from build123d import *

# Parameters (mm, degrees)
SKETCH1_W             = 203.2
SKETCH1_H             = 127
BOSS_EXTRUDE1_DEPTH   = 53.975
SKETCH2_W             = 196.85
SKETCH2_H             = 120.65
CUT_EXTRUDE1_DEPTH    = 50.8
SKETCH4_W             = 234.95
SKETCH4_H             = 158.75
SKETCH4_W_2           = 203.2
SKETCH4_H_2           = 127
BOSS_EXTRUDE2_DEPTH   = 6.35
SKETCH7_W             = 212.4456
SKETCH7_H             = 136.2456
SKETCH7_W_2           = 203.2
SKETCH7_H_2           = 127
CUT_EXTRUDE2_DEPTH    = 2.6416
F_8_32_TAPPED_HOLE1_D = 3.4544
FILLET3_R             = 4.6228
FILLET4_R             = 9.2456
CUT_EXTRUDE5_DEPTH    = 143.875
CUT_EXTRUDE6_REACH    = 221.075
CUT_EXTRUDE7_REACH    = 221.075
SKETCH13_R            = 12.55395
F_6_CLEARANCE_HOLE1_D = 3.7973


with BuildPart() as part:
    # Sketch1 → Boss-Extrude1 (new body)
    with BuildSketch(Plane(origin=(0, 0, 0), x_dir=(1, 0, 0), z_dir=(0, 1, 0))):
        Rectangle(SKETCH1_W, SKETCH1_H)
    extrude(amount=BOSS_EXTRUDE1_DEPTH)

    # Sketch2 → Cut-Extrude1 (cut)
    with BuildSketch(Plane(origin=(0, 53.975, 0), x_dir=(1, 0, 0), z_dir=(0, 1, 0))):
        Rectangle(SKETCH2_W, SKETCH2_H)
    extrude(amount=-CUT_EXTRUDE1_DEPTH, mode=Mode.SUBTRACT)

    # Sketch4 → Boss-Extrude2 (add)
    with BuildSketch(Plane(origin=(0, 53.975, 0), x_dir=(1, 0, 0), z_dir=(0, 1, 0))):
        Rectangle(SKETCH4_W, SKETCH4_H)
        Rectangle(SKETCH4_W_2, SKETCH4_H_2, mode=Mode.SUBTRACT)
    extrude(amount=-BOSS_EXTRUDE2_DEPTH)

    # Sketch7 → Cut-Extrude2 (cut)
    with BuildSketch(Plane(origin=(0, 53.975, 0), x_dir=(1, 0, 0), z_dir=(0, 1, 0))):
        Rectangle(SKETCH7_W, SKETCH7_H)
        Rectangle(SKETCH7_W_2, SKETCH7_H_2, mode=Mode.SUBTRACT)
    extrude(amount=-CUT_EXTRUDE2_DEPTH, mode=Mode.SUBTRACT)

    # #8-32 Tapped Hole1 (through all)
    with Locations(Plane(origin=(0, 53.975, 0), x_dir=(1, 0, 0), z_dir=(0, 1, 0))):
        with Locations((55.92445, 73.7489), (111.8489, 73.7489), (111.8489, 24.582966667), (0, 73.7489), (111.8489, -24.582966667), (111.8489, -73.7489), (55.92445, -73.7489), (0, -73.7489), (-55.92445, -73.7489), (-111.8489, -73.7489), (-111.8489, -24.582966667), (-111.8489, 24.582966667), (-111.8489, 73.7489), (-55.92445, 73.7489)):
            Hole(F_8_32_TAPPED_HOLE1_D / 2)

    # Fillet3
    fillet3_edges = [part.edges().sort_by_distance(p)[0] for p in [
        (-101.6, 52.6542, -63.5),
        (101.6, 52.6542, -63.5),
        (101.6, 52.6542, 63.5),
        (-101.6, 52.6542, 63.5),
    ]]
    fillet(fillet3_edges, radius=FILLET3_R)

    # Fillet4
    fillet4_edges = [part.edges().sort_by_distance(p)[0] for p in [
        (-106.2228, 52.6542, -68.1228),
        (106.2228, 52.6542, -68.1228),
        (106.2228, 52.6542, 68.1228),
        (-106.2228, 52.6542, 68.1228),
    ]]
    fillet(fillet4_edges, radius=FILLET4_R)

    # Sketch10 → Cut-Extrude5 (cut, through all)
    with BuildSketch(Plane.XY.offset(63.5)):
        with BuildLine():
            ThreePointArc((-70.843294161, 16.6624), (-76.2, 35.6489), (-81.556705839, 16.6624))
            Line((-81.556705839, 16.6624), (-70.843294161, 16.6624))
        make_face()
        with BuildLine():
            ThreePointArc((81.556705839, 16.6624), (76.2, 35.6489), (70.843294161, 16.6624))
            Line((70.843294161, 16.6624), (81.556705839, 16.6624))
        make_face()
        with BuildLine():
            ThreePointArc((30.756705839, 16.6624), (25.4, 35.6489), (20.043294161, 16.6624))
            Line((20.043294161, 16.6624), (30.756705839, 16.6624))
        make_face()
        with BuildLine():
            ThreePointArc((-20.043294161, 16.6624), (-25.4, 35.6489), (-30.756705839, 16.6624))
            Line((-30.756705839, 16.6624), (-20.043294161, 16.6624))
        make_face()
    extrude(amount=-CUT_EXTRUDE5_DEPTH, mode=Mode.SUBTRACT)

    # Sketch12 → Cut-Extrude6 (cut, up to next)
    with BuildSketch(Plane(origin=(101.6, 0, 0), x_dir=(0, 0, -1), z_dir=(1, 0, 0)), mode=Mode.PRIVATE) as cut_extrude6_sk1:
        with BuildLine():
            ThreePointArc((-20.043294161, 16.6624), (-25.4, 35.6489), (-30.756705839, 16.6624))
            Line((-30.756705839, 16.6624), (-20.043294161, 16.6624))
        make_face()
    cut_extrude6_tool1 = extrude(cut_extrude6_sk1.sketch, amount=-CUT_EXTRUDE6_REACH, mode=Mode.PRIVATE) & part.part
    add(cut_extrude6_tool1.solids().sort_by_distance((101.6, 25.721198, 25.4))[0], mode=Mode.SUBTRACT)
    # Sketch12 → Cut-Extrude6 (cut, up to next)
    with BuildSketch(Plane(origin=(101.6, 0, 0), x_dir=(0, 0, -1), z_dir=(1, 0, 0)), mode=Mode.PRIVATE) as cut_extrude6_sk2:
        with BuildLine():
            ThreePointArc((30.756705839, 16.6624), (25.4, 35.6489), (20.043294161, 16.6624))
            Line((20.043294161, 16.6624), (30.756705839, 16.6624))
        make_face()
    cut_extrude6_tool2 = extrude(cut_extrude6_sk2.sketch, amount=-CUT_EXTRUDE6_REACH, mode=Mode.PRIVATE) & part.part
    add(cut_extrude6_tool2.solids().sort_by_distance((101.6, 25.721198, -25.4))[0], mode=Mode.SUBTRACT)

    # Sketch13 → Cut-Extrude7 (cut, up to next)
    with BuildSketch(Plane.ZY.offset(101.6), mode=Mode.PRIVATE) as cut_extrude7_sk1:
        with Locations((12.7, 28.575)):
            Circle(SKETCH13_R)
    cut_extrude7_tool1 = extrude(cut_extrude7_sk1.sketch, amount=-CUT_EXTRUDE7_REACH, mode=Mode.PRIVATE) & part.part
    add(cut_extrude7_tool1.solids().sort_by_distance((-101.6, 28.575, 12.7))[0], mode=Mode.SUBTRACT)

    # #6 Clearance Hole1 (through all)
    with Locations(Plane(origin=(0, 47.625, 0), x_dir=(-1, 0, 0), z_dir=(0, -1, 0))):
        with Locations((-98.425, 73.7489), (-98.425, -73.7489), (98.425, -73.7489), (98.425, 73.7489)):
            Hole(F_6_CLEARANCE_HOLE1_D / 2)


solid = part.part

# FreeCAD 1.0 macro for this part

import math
import FreeCAD as App
import Part
import Sketcher
Q = App.Units.Quantity


def edges_at(feature, points):
    """Names of the edges that pass closest to the given points."""
    edges = feature.Shape.Edges
    near = lambda p: min(range(len(edges)), key=lambda i: edges[i].distToShape(Part.Vertex(*p))[0])
    return sorted({f"Edge{near(p) + 1}" for p in points})


def add_polygon(sketch, points):
    """Adds a closed chain of lines whose ends are joined by coincident constraints."""
    first, n = sketch.GeometryCount, len(points)
    for a, b in zip(points, points[1:] + points[:1]):
        sketch.addGeometry(Part.LineSegment(App.Vector(*a, 0), App.Vector(*b, 0)), False)
    for i in range(n):
        sketch.addConstraint(Sketcher.Constraint("Coincident", first + i, 2, first + (i + 1) % n, 1))

doc = App.newDocument("Part")
params = doc.addObject("Spreadsheet::Sheet", "Params")
for row, (alias, value) in enumerate([
    ("sketch1_width", "8 in"),
    ("sketch1_height", "5 in"),
    ("pad1_length", "2.125 in"),
    ("sketch2_width", "7.75 in"),
    ("sketch2_height", "4.75 in"),
    ("pocket1_length", "2 in"),
    ("sketch3_width", "8 in"),
    ("sketch3_height", "5 in"),
    ("sketch3_width2", "9.25 in"),
    ("sketch3_height2", "6.25 in"),
    ("pad2_length", "0.25 in"),
    ("sketch4_width", "8 in"),
    ("sketch4_height", "5 in"),
    ("sketch4_width2", "8.364 in"),
    ("sketch4_height2", "5.364 in"),
    ("pocket2_length", "0.104 in"),
    ("sketch5_diameter", "0.136 in"),
    ("hole_diameter", "0.136 in"),
    ("fillet_radius", "0.182 in"),
    ("fillet2_radius", "0.364 in"),
    ("hole2_diameter", "0.1495 in"),
], start=1):
    params.set(f"A{row}", alias)
    params.set(f"B{row}", "=" + value)
    params.setAlias(f"B{row}", alias)

body = doc.addObject("PartDesign::Body", "Body")

# Sketch on XZ plane
sketch1 = body.newObject("Sketcher::SketchObject", "Sketch")
sketch1.AttachmentSupport = (doc.getObject("XZ_Plane"), [""])
sketch1.MapMode = "FlatFace"
add_polygon(sketch1, [(-102, -64), (-102, 64), (102, 64), (102, -64)])  # lines 0-3
sketch1.addConstraint([
    Sketcher.Constraint("Vertical", 0),
    Sketcher.Constraint("Horizontal", 1),
    Sketcher.Constraint("Vertical", 2),
    Sketcher.Constraint("Horizontal", 3),
    Sketcher.Constraint("Symmetric", 0, 2, 2, 2, -1, 1),
    Sketcher.Constraint("DistanceX", 1, 1, 1, 2, Q("8 in")),
    Sketcher.Constraint("DistanceY", 0, 1, 0, 2, Q("5 in")),
])
sketch1.setExpression("Constraints[9]", "Params.sketch1_width")
sketch1.setExpression("Constraints[10]", "Params.sketch1_height")
pad1 = body.newObject("PartDesign::Pad", "Pad")
pad1.Profile = sketch1
pad1.setExpression("Length", "Params.pad1_length")
pad1.Reversed = True

# Sketch on XZ plane
sketch2 = body.newObject("Sketcher::SketchObject", "Sketch001")
sketch2.AttachmentSupport = (doc.getObject("XZ_Plane"), [""])
sketch2.MapMode = "FlatFace"
sketch2.AttachmentOffset = App.Placement(App.Vector(0, 0, -2.125 * 25.4), App.Rotation())
add_polygon(sketch2, [(-98, -60), (-98, 60), (98, 60), (98, -60)])  # lines 0-3
sketch2.addConstraint([
    Sketcher.Constraint("Vertical", 0),
    Sketcher.Constraint("Horizontal", 1),
    Sketcher.Constraint("Vertical", 2),
    Sketcher.Constraint("Horizontal", 3),
    Sketcher.Constraint("Symmetric", 0, 2, 2, 2, -1, 1),
    Sketcher.Constraint("DistanceX", 1, 1, 1, 2, Q("7.75 in")),
    Sketcher.Constraint("DistanceY", 0, 1, 0, 2, Q("4.75 in")),
])
sketch2.setExpression("Constraints[9]", "Params.sketch2_width")
sketch2.setExpression("Constraints[10]", "Params.sketch2_height")
pocket1 = body.newObject("PartDesign::Pocket", "Pocket")
pocket1.Profile = sketch2
pocket1.setExpression("Length", "Params.pocket1_length")
pocket1.Reversed = True

# Sketch on XZ plane
sketch3 = body.newObject("Sketcher::SketchObject", "Sketch002")
sketch3.AttachmentSupport = (doc.getObject("XZ_Plane"), [""])
sketch3.MapMode = "FlatFace"
sketch3.AttachmentOffset = App.Placement(App.Vector(0, 0, -2.125 * 25.4), App.Rotation())
add_polygon(sketch3, [(-117, -79), (-117, 79), (117, 79), (117, -79)])  # lines 0-3
add_polygon(sketch3, [(102, 64), (-102, 64), (-102, -64), (102, -64)])  # lines 4-7
sketch3.addConstraint([
    Sketcher.Constraint("Vertical", 0),
    Sketcher.Constraint("Horizontal", 1),
    Sketcher.Constraint("Vertical", 2),
    Sketcher.Constraint("Horizontal", 3),
    Sketcher.Constraint("Horizontal", 4),
    Sketcher.Constraint("Vertical", 5),
    Sketcher.Constraint("Horizontal", 6),
    Sketcher.Constraint("Vertical", 7),
    Sketcher.Constraint("Symmetric", 0, 2, 2, 2, -1, 1),
    Sketcher.Constraint("Symmetric", 4, 2, 6, 2, -1, 1),
    Sketcher.Constraint("DistanceX", 4, 2, 4, 1, Q("8 in")),
    Sketcher.Constraint("DistanceY", 5, 2, 5, 1, Q("5 in")),
    Sketcher.Constraint("DistanceX", 1, 1, 1, 2, Q("9.25 in")),
    Sketcher.Constraint("DistanceY", 0, 1, 0, 2, Q("6.25 in")),
])
sketch3.setExpression("Constraints[18]", "Params.sketch3_width")
sketch3.setExpression("Constraints[19]", "Params.sketch3_height")
sketch3.setExpression("Constraints[20]", "Params.sketch3_width2")
sketch3.setExpression("Constraints[21]", "Params.sketch3_height2")
pad2 = body.newObject("PartDesign::Pad", "Pad001")
pad2.Profile = sketch3
pad2.setExpression("Length", "Params.pad2_length")

# Sketch on XZ plane
sketch4 = body.newObject("Sketcher::SketchObject", "Sketch003")
sketch4.AttachmentSupport = (doc.getObject("XZ_Plane"), [""])
sketch4.MapMode = "FlatFace"
sketch4.AttachmentOffset = App.Placement(App.Vector(0, 0, -2.125 * 25.4), App.Rotation())
add_polygon(sketch4, [(-106, -68), (-106, 68), (106, 68), (106, -68)])  # lines 0-3
add_polygon(sketch4, [(102, 64), (-102, 64), (-102, -64), (102, -64)])  # lines 4-7
sketch4.addConstraint([
    Sketcher.Constraint("Vertical", 0),
    Sketcher.Constraint("Horizontal", 1),
    Sketcher.Constraint("Vertical", 2),
    Sketcher.Constraint("Horizontal", 3),
    Sketcher.Constraint("Horizontal", 4),
    Sketcher.Constraint("Vertical", 5),
    Sketcher.Constraint("Horizontal", 6),
    Sketcher.Constraint("Vertical", 7),
    Sketcher.Constraint("Symmetric", 0, 2, 2, 2, -1, 1),
    Sketcher.Constraint("Symmetric", 4, 2, 6, 2, -1, 1),
    Sketcher.Constraint("DistanceX", 4, 2, 4, 1, Q("8 in")),
    Sketcher.Constraint("DistanceY", 5, 2, 5, 1, Q("5 in")),
    Sketcher.Constraint("DistanceX", 1, 1, 1, 2, Q("8.364 in")),
    Sketcher.Constraint("DistanceY", 0, 1, 0, 2, Q("5.364 in")),
])
sketch4.setExpression("Constraints[18]", "Params.sketch4_width")
sketch4.setExpression("Constraints[19]", "Params.sketch4_height")
sketch4.setExpression("Constraints[20]", "Params.sketch4_width2")
sketch4.setExpression("Constraints[21]", "Params.sketch4_height2")
pocket2 = body.newObject("PartDesign::Pocket", "Pocket001")
pocket2.Profile = sketch4
pocket2.setExpression("Length", "Params.pocket2_length")
pocket2.Reversed = True

# Sketch on XZ plane
sketch5 = body.newObject("Sketcher::SketchObject", "Sketch004")
sketch5.AttachmentSupport = (doc.getObject("XZ_Plane"), [""])
sketch5.MapMode = "FlatFace"
sketch5.AttachmentOffset = App.Placement(App.Vector(0, 0, -2.125 * 25.4), App.Rotation())
sketch5.addGeometry([
    Part.Circle(App.Vector(55.9, -73.7, 0), App.Vector(0, 0, 1), 1.7),  # 0
    Part.Circle(App.Vector(111.8, -73.7, 0), App.Vector(0, 0, 1), 1.7),  # 1
    Part.Circle(App.Vector(111.8, -24.6, 0), App.Vector(0, 0, 1), 1.7),  # 2
    Part.Circle(App.Vector(0, -73.7, 0), App.Vector(0, 0, 1), 1.7),  # 3
    Part.Circle(App.Vector(111.8, 24.6, 0), App.Vector(0, 0, 1), 1.7),  # 4
    Part.Circle(App.Vector(111.8, 73.7, 0), App.Vector(0, 0, 1), 1.7),  # 5
    Part.Circle(App.Vector(55.9, 73.7, 0), App.Vector(0, 0, 1), 1.7),  # 6
    Part.Circle(App.Vector(0, 73.7, 0), App.Vector(0, 0, 1), 1.7),  # 7
    Part.Circle(App.Vector(-55.9, 73.7, 0), App.Vector(0, 0, 1), 1.7),  # 8
    Part.Circle(App.Vector(-111.8, 73.7, 0), App.Vector(0, 0, 1), 1.7),  # 9
    Part.Circle(App.Vector(-111.8, 24.6, 0), App.Vector(0, 0, 1), 1.7),  # 10
    Part.Circle(App.Vector(-111.8, -24.6, 0), App.Vector(0, 0, 1), 1.7),  # 11
    Part.Circle(App.Vector(-111.8, -73.7, 0), App.Vector(0, 0, 1), 1.7),  # 12
    Part.Circle(App.Vector(-55.9, -73.7, 0), App.Vector(0, 0, 1), 1.7),  # 13
], False)
sketch5.addConstraint([
    Sketcher.Constraint("Equal", 0, 1),
    Sketcher.Constraint("Equal", 1, 2),
    Sketcher.Constraint("Equal", 2, 3),
    Sketcher.Constraint("Equal", 3, 4),
    Sketcher.Constraint("Equal", 4, 5),
    Sketcher.Constraint("Equal", 5, 6),
    Sketcher.Constraint("Equal", 6, 7),
    Sketcher.Constraint("Equal", 7, 8),
    Sketcher.Constraint("Equal", 8, 9),
    Sketcher.Constraint("Equal", 9, 10),
    Sketcher.Constraint("Equal", 10, 11),
    Sketcher.Constraint("Equal", 11, 12),
    Sketcher.Constraint("Equal", 12, 13),
    Sketcher.Constraint("Symmetric", 3, 3, 7, 3, -1, 1),
    Sketcher.Constraint("Symmetric", 0, 3, 8, 3, -1, 1),
    Sketcher.Constraint("Symmetric", 1, 3, 9, 3, -1, 1),
    Sketcher.Constraint("Symmetric", 2, 3, 10, 3, -1, 1),
    Sketcher.Constraint("Symmetric", 4, 3, 11, 3, -1, 1),
    Sketcher.Constraint("Symmetric", 5, 3, 12, 3, -1, 1),
    Sketcher.Constraint("Symmetric", 6, 3, 13, 3, -1, 1),
    Sketcher.Constraint("Symmetric", 6, 3, 8, 3, -2),
    Sketcher.Constraint("Symmetric", 5, 3, 9, 3, -2),
    Sketcher.Constraint("Symmetric", 4, 3, 10, 3, -2),
    Sketcher.Constraint("PointOnObject", 3, 3, -2),
    Sketcher.Constraint("Horizontal", 0, 3, 1, 3),
    Sketcher.Constraint("Horizontal", 1, 3, 3, 3),
    Sketcher.Constraint("Vertical", 1, 3, 2, 3),
    Sketcher.Constraint("Diameter", 0, Q("0.136 in")),
    Sketcher.Constraint("DistanceY", 1, 3, 5, 3, Q("5.807 in")),
    Sketcher.Constraint("DistanceX", -1, 1, 1, 3, Q("4.4035 in")),
    Sketcher.Constraint("DistanceX", 8, 3, 6, 3, Q("4.4035 in")),
    Sketcher.Constraint("DistanceY", 2, 3, -1, 1, 24.582967),
])
sketch5.setExpression("Constraints[27]", "Params.sketch5_diameter")
doc.recompute()
hole = body.newObject("PartDesign::Hole", "Hole")
hole.Profile = sketch5
hole.ThreadType = "None"
hole.setExpression("Diameter", "Params.hole_diameter")
hole.DepthType = "ThroughAll"
hole.Reversed = True
doc.recompute()

fillet = body.newObject("PartDesign::Fillet", "Fillet")
fillet.Base = (hole, edges_at(hole, [
    (-101.6, 52.654, -63.5),
    (101.6, 52.654, -63.5),
    (101.6, 52.654, 63.5),
    (-101.6, 52.654, 63.5),
]))
fillet.setExpression("Radius", "Params.fillet_radius")
doc.recompute()

fillet2 = body.newObject("PartDesign::Fillet", "Fillet001")
fillet2.Base = (fillet, edges_at(fillet, [
    (-106.223, 52.654, -68.123),
    (106.223, 52.654, -68.123),
    (106.223, 52.654, 68.123),
    (-106.223, 52.654, 68.123),
]))
fillet2.setExpression("Radius", "Params.fillet2_radius")

# Sketch on XY plane
sketch6 = body.newObject("Sketcher::SketchObject", "Sketch005")
sketch6.AttachmentSupport = (doc.getObject("XY_Plane"), [""])
sketch6.MapMode = "FlatFace"
sketch6.AttachmentOffset = App.Placement(App.Vector(0, 0, 2.5 * 25.4), App.Rotation())
sketch6.addGeometry([
    Part.ArcOfCircle(Part.Circle(App.Vector(-76, 25, 0), App.Vector(0, 0, 1), 10), math.radians(-58), math.radians(238)),  # 0
    Part.LineSegment(App.Vector(-82, 17, 0), App.Vector(-71, 17, 0)),  # 1
    Part.ArcOfCircle(Part.Circle(App.Vector(76, 25, 0), App.Vector(0, 0, 1), 10), math.radians(-58), math.radians(238)),  # 2
    Part.LineSegment(App.Vector(71, 17, 0), App.Vector(82, 17, 0)),  # 3
    Part.ArcOfCircle(Part.Circle(App.Vector(25, 25, 0), App.Vector(0, 0, 1), 10), math.radians(-58), math.radians(238)),  # 4
    Part.LineSegment(App.Vector(20, 17, 0), App.Vector(31, 17, 0)),  # 5
    Part.ArcOfCircle(Part.Circle(App.Vector(-25, 25, 0), App.Vector(0, 0, 1), 10), math.radians(-58), math.radians(238)),  # 6
    Part.LineSegment(App.Vector(-31, 17, 0), App.Vector(-20, 17, 0)),  # 7
], False)
sketch6.addConstraint([
    Sketcher.Constraint("Coincident", 0, 1, 1, 2),
    Sketcher.Constraint("Coincident", 1, 1, 0, 2),
    Sketcher.Constraint("Coincident", 2, 1, 3, 2),
    Sketcher.Constraint("Coincident", 3, 1, 2, 2),
    Sketcher.Constraint("Coincident", 4, 1, 5, 2),
    Sketcher.Constraint("Coincident", 5, 1, 4, 2),
    Sketcher.Constraint("Coincident", 6, 1, 7, 2),
    Sketcher.Constraint("Coincident", 7, 1, 6, 2),
    Sketcher.Constraint("Horizontal", 1),
    Sketcher.Constraint("Horizontal", 3),
    Sketcher.Constraint("Horizontal", 5),
    Sketcher.Constraint("Horizontal", 7),
    Sketcher.Constraint("Equal", 0, 2),
    Sketcher.Constraint("Equal", 2, 4),
    Sketcher.Constraint("Equal", 4, 6),
    Sketcher.Constraint("Symmetric", 0, 3, 2, 3, -2),
    Sketcher.Constraint("Symmetric", 4, 3, 6, 3, -2),
    Sketcher.Constraint("Horizontal", 2, 3, 4, 3),
    Sketcher.Constraint("Horizontal", 1, 1, 2, 1),
    Sketcher.Constraint("Horizontal", 3, 1, 4, 1),
    Sketcher.Constraint("Horizontal", 5, 1, 6, 1),
    Sketcher.Constraint("DistanceX", 0, 3, -1, 1, Q("3 in")),
    Sketcher.Constraint("DistanceY", -1, 1, 0, 3, Q("1 in")),
    Sketcher.Constraint("DistanceX", -1, 1, 4, 3, Q("1 in")),
    Sketcher.Constraint("Radius", 0, Q("0.4035 in")),
    Sketcher.Constraint("DistanceY", -1, 1, 0, 1, Q("0.656 in")),
])
pocket3 = body.newObject("PartDesign::Pocket", "Pocket002")
pocket3.Profile = sketch6
pocket3.Type = "ThroughAll"

# Sketch on YZ plane
sketch7 = body.newObject("Sketcher::SketchObject", "Sketch006")
sketch7.AttachmentSupport = (doc.getObject("YZ_Plane"), [""])
sketch7.MapMode = "FlatFace"
sketch7.AttachmentOffset = App.Placement(App.Vector(0, 0, 4 * 25.4), App.Rotation())
sketch7.addGeometry([
    Part.ArcOfCircle(Part.Circle(App.Vector(25, 25, 0), App.Vector(0, 0, 1), 10), math.radians(-148), math.radians(148)),
    Part.LineSegment(App.Vector(17, 31, 0), App.Vector(17, 20, 0)),
], False)
sketch7.addConstraint([
    Sketcher.Constraint("Coincident", 0, 1, 1, 2),
    Sketcher.Constraint("Coincident", 1, 1, 0, 2),
    Sketcher.Constraint("Vertical", 1),
    Sketcher.Constraint("DistanceX", -1, 1, 0, 3, Q("1 in")),
    Sketcher.Constraint("DistanceY", -1, 1, 0, 3, Q("1 in")),
    Sketcher.Constraint("Radius", 0, Q("0.4035 in")),
    Sketcher.Constraint("DistanceX", -1, 1, 0, 1, Q("0.656 in")),
])
pocket4 = body.newObject("PartDesign::Pocket", "Pocket003")
pocket4.Profile = sketch7
pocket4.Type = "UpToFirst"

# Sketch on YZ plane
sketch8 = body.newObject("Sketcher::SketchObject", "Sketch007")
sketch8.AttachmentSupport = (doc.getObject("YZ_Plane"), [""])
sketch8.MapMode = "FlatFace"
sketch8.AttachmentOffset = App.Placement(App.Vector(0, 0, 4 * 25.4), App.Rotation())
sketch8.addGeometry([
    Part.ArcOfCircle(Part.Circle(App.Vector(25, -25, 0), App.Vector(0, 0, 1), 10), math.radians(-148), math.radians(148)),
    Part.LineSegment(App.Vector(17, -20, 0), App.Vector(17, -31, 0)),
], False)
sketch8.addConstraint([
    Sketcher.Constraint("Coincident", 0, 1, 1, 2),
    Sketcher.Constraint("Coincident", 1, 1, 0, 2),
    Sketcher.Constraint("Vertical", 1),
    Sketcher.Constraint("DistanceX", -1, 1, 0, 3, Q("1 in")),
    Sketcher.Constraint("DistanceY", 0, 3, -1, 1, Q("1 in")),
    Sketcher.Constraint("Radius", 0, Q("0.4035 in")),
    Sketcher.Constraint("DistanceX", -1, 1, 0, 1, Q("0.656 in")),
])
pocket5 = body.newObject("PartDesign::Pocket", "Pocket004")
pocket5.Profile = sketch8
pocket5.Type = "UpToFirst"

# Sketch on YZ plane
sketch9 = body.newObject("Sketcher::SketchObject", "Sketch008")
sketch9.AttachmentSupport = (doc.getObject("YZ_Plane"), [""])
sketch9.MapMode = "FlatFace"
sketch9.AttachmentOffset = App.Placement(App.Vector(0, 0, -4 * 25.4), App.Rotation())
sketch9.addGeometry(Part.Circle(App.Vector(29, 13, 0), App.Vector(0, 0, 1), 13), False)
sketch9.addConstraint([
    Sketcher.Constraint("Diameter", 0, Q("0.9885 in")),
    Sketcher.Constraint("DistanceY", -1, 1, 0, 3, Q("0.5 in")),
    Sketcher.Constraint("DistanceX", -1, 1, 0, 3, Q("1.125 in")),
])
pocket6 = body.newObject("PartDesign::Pocket", "Pocket005")
pocket6.Profile = sketch9
pocket6.Type = "UpToFirst"
pocket6.Reversed = True

# Sketch on XZ plane
sketch10 = body.newObject("Sketcher::SketchObject", "Sketch009")
sketch10.AttachmentSupport = (doc.getObject("XZ_Plane"), [""])
sketch10.MapMode = "FlatFace"
sketch10.AttachmentOffset = App.Placement(App.Vector(0, 0, -1.875 * 25.4), App.Rotation())
sketch10.addGeometry([
    Part.Circle(App.Vector(98.4, -73.7, 0), App.Vector(0, 0, 1), 1.9),
    Part.Circle(App.Vector(98.4, 73.7, 0), App.Vector(0, 0, 1), 1.9),
    Part.Circle(App.Vector(-98.4, 73.7, 0), App.Vector(0, 0, 1), 1.9),
    Part.Circle(App.Vector(-98.4, -73.7, 0), App.Vector(0, 0, 1), 1.9),
], False)
sketch10.addConstraint([
    Sketcher.Constraint("Equal", 0, 1),
    Sketcher.Constraint("Equal", 1, 2),
    Sketcher.Constraint("Equal", 2, 3),
    Sketcher.Constraint("Symmetric", 0, 3, 2, 3, -1, 1),
    Sketcher.Constraint("Symmetric", 1, 3, 3, 3, -1, 1),
    Sketcher.Constraint("Symmetric", 1, 3, 2, 3, -2),
    Sketcher.Constraint("Diameter", 0, Q("0.1495 in")),
    Sketcher.Constraint("DistanceX", 2, 3, 1, 3, Q("7.75 in")),
    Sketcher.Constraint("DistanceY", 0, 3, 1, 3, Q("5.807 in")),
])
doc.recompute()
hole2 = body.newObject("PartDesign::Hole", "Hole001")
hole2.Profile = sketch10
hole2.ThreadType = "None"
hole2.setExpression("Diameter", "Params.hole2_diameter")
hole2.DepthType = "ThroughAll"

doc.recompute()
